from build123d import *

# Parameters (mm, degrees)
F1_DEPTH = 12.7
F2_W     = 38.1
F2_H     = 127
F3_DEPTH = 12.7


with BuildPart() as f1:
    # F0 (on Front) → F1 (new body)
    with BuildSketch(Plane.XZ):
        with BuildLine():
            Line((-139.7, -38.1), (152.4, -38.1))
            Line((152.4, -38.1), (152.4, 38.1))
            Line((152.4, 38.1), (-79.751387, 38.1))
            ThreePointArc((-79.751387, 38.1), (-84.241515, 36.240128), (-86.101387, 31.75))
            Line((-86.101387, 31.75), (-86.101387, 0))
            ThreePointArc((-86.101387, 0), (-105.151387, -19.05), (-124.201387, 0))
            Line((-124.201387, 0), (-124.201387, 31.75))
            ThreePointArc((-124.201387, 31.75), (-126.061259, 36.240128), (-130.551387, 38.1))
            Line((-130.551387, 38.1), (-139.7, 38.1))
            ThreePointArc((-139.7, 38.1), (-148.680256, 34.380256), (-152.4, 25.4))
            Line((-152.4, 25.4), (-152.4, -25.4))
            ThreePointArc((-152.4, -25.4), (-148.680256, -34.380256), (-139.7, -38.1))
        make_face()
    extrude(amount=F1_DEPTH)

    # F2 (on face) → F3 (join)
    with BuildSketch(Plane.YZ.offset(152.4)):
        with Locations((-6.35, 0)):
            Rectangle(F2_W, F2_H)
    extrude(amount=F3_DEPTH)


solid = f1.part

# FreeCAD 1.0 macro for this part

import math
import FreeCAD as App
import Part
import Sketcher
Q = App.Units.Quantity

doc = App.newDocument("Part")
params = doc.addObject("Spreadsheet::Sheet", "Params")
for row, (alias, value) in enumerate([
    ("sketch1_radius", "0.5 in"),
    ("sketch1_height", "3 in"),
    ("sketch1_radius2", "0.25 in"),
    ("sketch1_radius3", "0.75 in"),
    ("sketch1_width", "11.5 in"),
    ("pad1_length", "0.5 in"),
    ("sketch2_height", "5 in"),
    ("sketch2_width", "1.5 in"),
    ("pad2_length", "0.5 in"),
], start=1):
    params.set(f"A{row}", alias)
    params.set(f"B{row}", "=" + value)
    params.setAlias(f"B{row}", alias)

body = doc.addObject("PartDesign::Body", "Body")

sketch1 = doc.addObject("Sketcher::SketchObject", "Sketch")
body.addObject(sketch1)
sketch1.AttachmentSupport = (doc.XZ_Plane, [""])
sketch1.MapMode = "FlatFace"
sketch1.addGeometry([
    Part.LineSegment(App.Vector(-140, -38, 0), App.Vector(152, -38, 0)),
    Part.LineSegment(App.Vector(152, -38, 0), App.Vector(152, 38, 0)),
    Part.LineSegment(App.Vector(152, 38, 0), App.Vector(-80, 38, 0)),
    Part.ArcOfCircle(Part.Circle(App.Vector(-80, 32, 0), App.Vector(0, 0, 1), 6), math.radians(90), math.radians(180)),
    Part.LineSegment(App.Vector(-86, 32, 0), App.Vector(-86, 0, 0)),
    Part.ArcOfCircle(Part.Circle(App.Vector(-105, 0, 0), App.Vector(0, 0, 1), 19), math.radians(180), math.radians(360)),
    Part.LineSegment(App.Vector(-124, 0, 0), App.Vector(-124, 32, 0)),
    Part.ArcOfCircle(Part.Circle(App.Vector(-131, 32, 0), App.Vector(0, 0, 1), 6), math.radians(0), math.radians(90)),
    Part.LineSegment(App.Vector(-131, 38, 0), App.Vector(-140, 38, 0)),
    Part.ArcOfCircle(Part.Circle(App.Vector(-140, 25, 0), App.Vector(0, 0, 1), 13), math.radians(90), math.radians(180)),
    Part.LineSegment(App.Vector(-152, 25, 0), App.Vector(-152, -25, 0)),
    Part.ArcOfCircle(Part.Circle(App.Vector(-140, -25, 0), App.Vector(0, 0, 1), 13), math.radians(-180), math.radians(-90)),
], False)
sketch1.addConstraint([
    Sketcher.Constraint("Coincident", 0, 2, 1, 1),
    Sketcher.Constraint("Coincident", 1, 2, 2, 1),
    Sketcher.Constraint("Tangent", 2, 2, 3, 1),
    Sketcher.Constraint("Tangent", 3, 2, 4, 1),
    Sketcher.Constraint("Tangent", 4, 2, 5, 2),
    Sketcher.Constraint("Tangent", 5, 1, 6, 1),
    Sketcher.Constraint("Tangent", 6, 2, 7, 1),
    Sketcher.Constraint("Tangent", 7, 2, 8, 1),
    Sketcher.Constraint("Tangent", 8, 2, 9, 1),
    Sketcher.Constraint("Tangent", 9, 2, 10, 1),
    Sketcher.Constraint("Tangent", 10, 2, 11, 1),
    Sketcher.Constraint("Tangent", 11, 2, 0, 1),
    Sketcher.Constraint("Horizontal", 0),
    Sketcher.Constraint("Vertical", 1),
    Sketcher.Constraint("Horizontal", 2),
    Sketcher.Constraint("Vertical", 4),
    Sketcher.Constraint("Vertical", 6),
    Sketcher.Constraint("Horizontal", 8),
    Sketcher.Constraint("Vertical", 10),
    Sketcher.Constraint("Equal", 3, 7),
    Sketcher.Constraint("Equal", 9, 11),
    Sketcher.Constraint("PointOnObject", 5, 3, -1),
    Sketcher.Constraint("Horizontal", 3, 3, 7, 3),
    Sketcher.Constraint("Radius", 9, Q("0.5 in")),
    Sketcher.Constraint("DistanceY", 1, 1, 1, 2, Q("3 in")),
    Sketcher.Constraint("Radius", 3, Q("0.25 in")),
    Sketcher.Constraint("Radius", 5, Q("0.75 in")),
    Sketcher.Constraint("DistanceX", 0, 1, 0, 2, Q("11.5 in")),
    Sketcher.Constraint("DistanceY", -1, 1, 9, 3, Q("1 in")),
    Sketcher.Constraint("DistanceX", -1, 1, 0, 2, Q("6 in")),
    Sketcher.Constraint("DistanceX", 2, 2, 2, 1, Q("232.151387 mm")),
])
sketch1.setExpression("Constraints[23]", "Params.sketch1_radius")
sketch1.setExpression("Constraints[24]", "Params.sketch1_height")
sketch1.setExpression("Constraints[25]", "Params.sketch1_radius2")
sketch1.setExpression("Constraints[26]", "Params.sketch1_radius3")
sketch1.setExpression("Constraints[27]", "Params.sketch1_width")
pad1 = doc.addObject("PartDesign::Pad", "Pad")
body.addObject(pad1)
pad1.Profile = sketch1
pad1.setExpression("Length", "Params.pad1_length")

sketch2 = doc.addObject("Sketcher::SketchObject", "Sketch001")
body.addObject(sketch2)
sketch2.AttachmentSupport = (doc.YZ_Plane, [""])
sketch2.MapMode = "FlatFace"
sketch2.AttachmentOffset = App.Placement(App.Vector(0, 0, 6 * 25.4), App.Rotation())
sketch2.addGeometry([
    Part.LineSegment(App.Vector(-25, 64, 0), App.Vector(-25, -64, 0)),
    Part.LineSegment(App.Vector(-25, -64, 0), App.Vector(13, -64, 0)),
    Part.LineSegment(App.Vector(13, -64, 0), App.Vector(13, 64, 0)),
    Part.LineSegment(App.Vector(13, 64, 0), App.Vector(-25, 64, 0)),
], False)
sketch2.addConstraint([
    Sketcher.Constraint("Coincident", 0, 2, 1, 1),
    Sketcher.Constraint("Coincident", 1, 2, 2, 1),
    Sketcher.Constraint("Coincident", 2, 2, 3, 1),
    Sketcher.Constraint("Coincident", 3, 2, 0, 1),
    Sketcher.Constraint("Vertical", 0),
    Sketcher.Constraint("Horizontal", 1),
    Sketcher.Constraint("Vertical", 2),
    Sketcher.Constraint("Horizontal", 3),
    Sketcher.Constraint("DistanceY", 0, 2, 0, 1, Q("5 in")),
    Sketcher.Constraint("DistanceX", 1, 1, 1, 2, Q("1.5 in")),
    Sketcher.Constraint("DistanceX", 0, 2, -1, 1, Q("1 in")),
    Sketcher.Constraint("DistanceY", 0, 2, -1, 1, Q("2.5 in")),
])
sketch2.setExpression("Constraints[8]", "Params.sketch2_height")
sketch2.setExpression("Constraints[9]", "Params.sketch2_width")
pad2 = doc.addObject("PartDesign::Pad", "Pad001")
body.addObject(pad2)
pad2.Profile = sketch2
pad2.setExpression("Length", "Params.pad2_length")

doc.recompute()
